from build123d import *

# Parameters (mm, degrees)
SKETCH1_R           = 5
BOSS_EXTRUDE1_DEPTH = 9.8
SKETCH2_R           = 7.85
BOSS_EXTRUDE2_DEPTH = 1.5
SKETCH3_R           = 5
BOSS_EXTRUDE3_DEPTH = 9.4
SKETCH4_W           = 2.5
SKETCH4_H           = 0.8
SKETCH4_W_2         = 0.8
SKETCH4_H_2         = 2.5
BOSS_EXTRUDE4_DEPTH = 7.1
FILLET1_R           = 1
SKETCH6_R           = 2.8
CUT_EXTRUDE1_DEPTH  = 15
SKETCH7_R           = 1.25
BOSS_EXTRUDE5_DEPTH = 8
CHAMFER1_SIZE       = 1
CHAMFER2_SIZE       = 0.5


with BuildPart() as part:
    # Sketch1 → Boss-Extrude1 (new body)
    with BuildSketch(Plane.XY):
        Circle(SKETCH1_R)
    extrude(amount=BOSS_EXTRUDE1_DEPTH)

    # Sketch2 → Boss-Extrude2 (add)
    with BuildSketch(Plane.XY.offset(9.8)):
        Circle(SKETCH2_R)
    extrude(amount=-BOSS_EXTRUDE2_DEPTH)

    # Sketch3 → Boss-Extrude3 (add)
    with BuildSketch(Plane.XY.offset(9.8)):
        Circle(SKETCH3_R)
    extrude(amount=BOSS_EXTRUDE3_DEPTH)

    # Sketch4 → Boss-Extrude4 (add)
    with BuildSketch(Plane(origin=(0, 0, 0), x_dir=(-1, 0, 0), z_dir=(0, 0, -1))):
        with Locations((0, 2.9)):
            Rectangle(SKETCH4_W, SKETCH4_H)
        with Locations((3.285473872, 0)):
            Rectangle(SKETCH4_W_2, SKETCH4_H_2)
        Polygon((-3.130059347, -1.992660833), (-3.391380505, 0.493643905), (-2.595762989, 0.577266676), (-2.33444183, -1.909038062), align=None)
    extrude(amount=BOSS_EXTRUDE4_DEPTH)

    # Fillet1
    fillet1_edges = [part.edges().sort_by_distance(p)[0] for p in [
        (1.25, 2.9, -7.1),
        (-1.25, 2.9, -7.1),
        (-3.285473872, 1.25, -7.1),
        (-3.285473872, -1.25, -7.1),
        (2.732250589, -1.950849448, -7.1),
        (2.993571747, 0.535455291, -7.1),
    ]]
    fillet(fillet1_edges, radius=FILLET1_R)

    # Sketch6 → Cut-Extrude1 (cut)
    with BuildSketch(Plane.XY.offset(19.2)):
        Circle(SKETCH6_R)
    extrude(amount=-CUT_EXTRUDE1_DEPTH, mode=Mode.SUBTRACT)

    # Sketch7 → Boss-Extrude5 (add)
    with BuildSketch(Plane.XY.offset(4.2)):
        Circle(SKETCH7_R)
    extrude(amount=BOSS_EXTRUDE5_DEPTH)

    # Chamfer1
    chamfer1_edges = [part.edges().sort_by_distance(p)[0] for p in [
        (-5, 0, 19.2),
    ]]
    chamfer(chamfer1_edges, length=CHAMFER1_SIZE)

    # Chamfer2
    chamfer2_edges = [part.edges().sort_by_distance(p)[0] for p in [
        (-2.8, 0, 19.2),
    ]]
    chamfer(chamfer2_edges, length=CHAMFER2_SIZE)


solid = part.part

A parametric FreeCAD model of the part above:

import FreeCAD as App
import Part
import Sketcher
Q = App.Units.Quantity


def edges_at(feature, points):
    """Names of the edges that pass closest to the given points."""
    edges = feature.Shape.Edges
    near = lambda p: min(range(len(edges)), key=lambda i: edges[i].distToShape(Part.Vertex(*p))[0])
    return sorted({f"Edge{near(p) + 1}" for p in points})

doc = App.newDocument("Part")
params = doc.addObject("Spreadsheet::Sheet", "Params")
for row, (alias, value) in enumerate([
    ("sketch1_diameter", "10 mm"),
    ("pad1_length", "9.8 mm"),
    ("sketch2_diameter", "15.7 mm"),
    ("pad2_length", "1.5 mm"),
    ("sketch3_diameter", "10 mm"),
    ("pad3_length", "9.4 mm"),
    ("sketch4_width", "2.5 mm"),
    ("sketch4_width2", "0.8 mm"),
    ("sketch4_length", "2.5 mm"),
    ("sketch4_length2", "0.8 mm"),
    ("pad4_length", "7.1 mm"),
    ("fillet_radius", "1 mm"),
    ("sketch5_diameter", "5.6 mm"),
    ("pocket1_length", "15 mm"),
    ("sketch6_diameter", "2.5 mm"),
    ("pad5_length", "8 mm"),
    ("chamfer_size", "1 mm"),
    ("chamfer2_size", "0.5 mm"),
], start=1):
    params.set(f"A{row}", alias)
    params.set(f"B{row}", "=" + value)
    params.setAlias(f"B{row}", alias)

body = doc.addObject("PartDesign::Body", "Body")

# Sketch on XY plane
sketch1 = doc.addObject("Sketcher::SketchObject", "Sketch")
body.addObject(sketch1)
sketch1.AttachmentSupport = (doc.XY_Plane, [""])
sketch1.MapMode = "FlatFace"
sketch1.addGeometry(Part.Circle(App.Vector(0, 0, 0), App.Vector(0, 0, 1), 5), False)
sketch1.addConstraint([
    Sketcher.Constraint("Coincident", 0, 3, -1, 1),
    Sketcher.Constraint("Diameter", 0, Q("10 mm")),
])
sketch1.setExpression("Constraints[1]", "Params.sketch1_diameter")
pad1 = doc.addObject("PartDesign::Pad", "Pad")
body.addObject(pad1)
pad1.Profile = sketch1
pad1.setExpression("Length", "Params.pad1_length")

# Sketch on XY plane
sketch2 = doc.addObject("Sketcher::SketchObject", "Sketch001")
body.addObject(sketch2)
sketch2.AttachmentSupport = (doc.XY_Plane, [""])
sketch2.MapMode = "FlatFace"
sketch2.AttachmentOffset = App.Placement(App.Vector(0, 0, 9.8), App.Rotation())
sketch2.addGeometry(Part.Circle(App.Vector(0, 0, 0), App.Vector(0, 0, 1), 8), False)
sketch2.addConstraint([
    Sketcher.Constraint("Coincident", 0, 3, -1, 1),
    Sketcher.Constraint("Diameter", 0, Q("15.7 mm")),
])
sketch2.setExpression("Constraints[1]", "Params.sketch2_diameter")
pad2 = doc.addObject("PartDesign::Pad", "Pad001")
body.addObject(pad2)
pad2.Profile = sketch2
pad2.setExpression("Length", "Params.pad2_length")
pad2.Reversed = True

# Sketch on XY plane
sketch3 = doc.addObject("Sketcher::SketchObject", "Sketch002")
body.addObject(sketch3)
sketch3.AttachmentSupport = (doc.XY_Plane, [""])
sketch3.MapMode = "FlatFace"
sketch3.AttachmentOffset = App.Placement(App.Vector(0, 0, 9.8), App.Rotation())
sketch3.addGeometry(Part.Circle(App.Vector(0, 0, 0), App.Vector(0, 0, 1), 5), False)
sketch3.addConstraint([
    Sketcher.Constraint("Coincident", 0, 3, -1, 1),
    Sketcher.Constraint("Diameter", 0, Q("10 mm")),
])
sketch3.setExpression("Constraints[1]", "Params.sketch3_diameter")
pad3 = doc.addObject("PartDesign::Pad", "Pad002")
body.addObject(pad3)
pad3.Profile = sketch3
pad3.setExpression("Length", "Params.pad3_length")

# Sketch on XY plane
sketch4 = doc.addObject("Sketcher::SketchObject", "Sketch003")
body.addObject(sketch4)
sketch4.AttachmentSupport = (doc.XY_Plane, [""])
sketch4.MapMode = "FlatFace"
sketch4.addGeometry([
    Part.LineSegment(App.Vector(1.2, 3.3, 0), App.Vector(1.2, 2.5, 0)),  # 0
    Part.LineSegment(App.Vector(1.2, 2.5, 0), App.Vector(-1.2, 2.5, 0)),  # 1
    Part.LineSegment(App.Vector(-1.2, 2.5, 0), App.Vector(-1.2, 3.3, 0)),  # 2
    Part.LineSegment(App.Vector(-1.2, 3.3, 0), App.Vector(1.2, 3.3, 0)),  # 3
    Part.LineSegment(App.Vector(-2.9, 1.2, 0), App.Vector(-2.9, -1.2, 0)),  # 4
    Part.LineSegment(App.Vector(-2.9, -1.2, 0), App.Vector(-3.7, -1.2, 0)),  # 5
    Part.LineSegment(App.Vector(-3.7, -1.2, 0), App.Vector(-3.7, 1.2, 0)),  # 6
    Part.LineSegment(App.Vector(-3.7, 1.2, 0), App.Vector(-2.9, 1.2, 0)),  # 7
    Part.LineSegment(App.Vector(3.4, 0.5, 0), App.Vector(3.1, -2, 0)),  # 8
    Part.LineSegment(App.Vector(3.1, -2, 0), App.Vector(2.3, -1.9, 0)),  # 9
    Part.LineSegment(App.Vector(2.3, -1.9, 0), App.Vector(2.6, 0.6, 0)),  # 10
    Part.LineSegment(App.Vector(2.6, 0.6, 0), App.Vector(3.4, 0.5, 0)),  # 11
], False)
sketch4.addConstraint([
    Sketcher.Constraint("Coincident", 0, 2, 1, 1),
    Sketcher.Constraint("Coincident", 1, 2, 2, 1),
    Sketcher.Constraint("Coincident", 2, 2, 3, 1),
    Sketcher.Constraint("Coincident", 3, 2, 0, 1),
    Sketcher.Constraint("Coincident", 4, 2, 5, 1),
    Sketcher.Constraint("Coincident", 5, 2, 6, 1),
    Sketcher.Constraint("Coincident", 6, 2, 7, 1),
    Sketcher.Constraint("Coincident", 7, 2, 4, 1),
    Sketcher.Constraint("Coincident", 8, 2, 9, 1),
    Sketcher.Constraint("Coincident", 9, 2, 10, 1),
    Sketcher.Constraint("Coincident", 10, 2, 11, 1),
    Sketcher.Constraint("Coincident", 11, 2, 8, 1),
    Sketcher.Constraint("Vertical", 0),
    Sketcher.Constraint("Horizontal", 1),
    Sketcher.Constraint("Vertical", 2),
    Sketcher.Constraint("Horizontal", 3),
    Sketcher.Constraint("Vertical", 4),
    Sketcher.Constraint("Horizontal", 5),
    Sketcher.Constraint("Vertical", 6),
    Sketcher.Constraint("Horizontal", 7),
    Sketcher.Constraint("Perpendicular", 8, 9),
    Sketcher.Constraint("Perpendicular", 9, 10),
    Sketcher.Constraint("Perpendicular", 10, 11),
    Sketcher.Constraint("Equal", 7, 0),
    Sketcher.Constraint("Equal", 3, 4),
    Sketcher.Constraint("Angle", 8, Q("-96 deg")),
    Sketcher.Constraint("DistanceX", 1, 2, 1, 1, Q("2.5 mm")),
    Sketcher.Constraint("DistanceX", 5, 2, 5, 1, Q("0.8 mm")),
    Sketcher.Constraint("Distance", 8, Q("2.5 mm")),
    Sketcher.Constraint("Distance", 9, Q("0.8 mm")),
    Sketcher.Constraint("DistanceY", -1, 1, 0, 2, Q("2.5 mm")),
    Sketcher.Constraint("DistanceX", -1, 1, 0, 2, Q("1.25 mm")),
    Sketcher.Constraint("DistanceY", 4, 2, -1, 1, Q("1.25 mm")),
    Sketcher.Constraint("DistanceX", -1, 1, 8, 2, Q("3.130059 mm")),
    Sketcher.Constraint("DistanceY", 8, 2, -1, 1, Q("1.992661 mm")),
    Sketcher.Constraint("DistanceX", 4, 2, -1, 1, Q("2.885474 mm")),
])
sketch4.setExpression("Constraints[26]", "Params.sketch4_width")
sketch4.setExpression("Constraints[27]", "Params.sketch4_width2")
sketch4.setExpression("Constraints[28]", "Params.sketch4_length")
sketch4.setExpression("Constraints[29]", "Params.sketch4_length2")
pad4 = doc.addObject("PartDesign::Pad", "Pad003")
body.addObject(pad4)
pad4.Profile = sketch4
pad4.setExpression("Length", "Params.pad4_length")
pad4.Reversed = True
doc.recompute()

fillet = doc.addObject("PartDesign::Fillet", "Fillet")
body.addObject(fillet)
fillet.Base = (pad4, edges_at(pad4, [
    (1.25, 2.9, -7.1),
    (-1.25, 2.9, -7.1),
    (-3.285, 1.25, -7.1),
    (-3.285, -1.25, -7.1),
    (2.732, -1.951, -7.1),
    (2.994, 0.535, -7.1),
]))
fillet.setExpression("Radius", "Params.fillet_radius")

# Sketch on XY plane
sketch5 = doc.addObject("Sketcher::SketchObject", "Sketch004")
body.addObject(sketch5)
sketch5.AttachmentSupport = (doc.XY_Plane, [""])
sketch5.MapMode = "FlatFace"
sketch5.AttachmentOffset = App.Placement(App.Vector(0, 0, 19.2), App.Rotation())
sketch5.addGeometry(Part.Circle(App.Vector(0, 0, 0), App.Vector(0, 0, 1), 2.8), False)
sketch5.addConstraint([
    Sketcher.Constraint("Coincident", 0, 3, -1, 1),
    Sketcher.Constraint("Diameter", 0, Q("5.6 mm")),
])
sketch5.setExpression("Constraints[1]", "Params.sketch5_diameter")
pocket1 = doc.addObject("PartDesign::Pocket", "Pocket")
body.addObject(pocket1)
pocket1.Profile = sketch5
pocket1.setExpression("Length", "Params.pocket1_length")

# Sketch on XY plane
sketch6 = doc.addObject("Sketcher::SketchObject", "Sketch005")
body.addObject(sketch6)
sketch6.AttachmentSupport = (doc.XY_Plane, [""])
sketch6.MapMode = "FlatFace"
sketch6.AttachmentOffset = App.Placement(App.Vector(0, 0, 4.2), App.Rotation())
sketch6.addGeometry(Part.Circle(App.Vector(0, 0, 0), App.Vector(0, 0, 1), 1.2), False)
sketch6.addConstraint([
    Sketcher.Constraint("Coincident", 0, 3, -1, 1),
    Sketcher.Constraint("Diameter", 0, Q("2.5 mm")),
])
sketch6.setExpression("Constraints[1]", "Params.sketch6_diameter")
pad5 = doc.addObject("PartDesign::Pad", "Pad004")
body.addObject(pad5)
pad5.Profile = sketch6
pad5.setExpression("Length", "Params.pad5_length")
doc.recompute()

chamfer = doc.addObject("PartDesign::Chamfer", "Chamfer")
body.addObject(chamfer)
chamfer.Base = (pad5, edges_at(pad5, [(-5, 0, 19.2)]))
chamfer.setExpression("Size", "Params.chamfer_size")
doc.recompute()

chamfer2 = doc.addObject("PartDesign::Chamfer", "Chamfer001")
body.addObject(chamfer2)
chamfer2.Base = (chamfer, edges_at(chamfer, [(-2.8, 0, 19.2)]))
chamfer2.setExpression("Size", "Params.chamfer2_size")

doc.recompute()
